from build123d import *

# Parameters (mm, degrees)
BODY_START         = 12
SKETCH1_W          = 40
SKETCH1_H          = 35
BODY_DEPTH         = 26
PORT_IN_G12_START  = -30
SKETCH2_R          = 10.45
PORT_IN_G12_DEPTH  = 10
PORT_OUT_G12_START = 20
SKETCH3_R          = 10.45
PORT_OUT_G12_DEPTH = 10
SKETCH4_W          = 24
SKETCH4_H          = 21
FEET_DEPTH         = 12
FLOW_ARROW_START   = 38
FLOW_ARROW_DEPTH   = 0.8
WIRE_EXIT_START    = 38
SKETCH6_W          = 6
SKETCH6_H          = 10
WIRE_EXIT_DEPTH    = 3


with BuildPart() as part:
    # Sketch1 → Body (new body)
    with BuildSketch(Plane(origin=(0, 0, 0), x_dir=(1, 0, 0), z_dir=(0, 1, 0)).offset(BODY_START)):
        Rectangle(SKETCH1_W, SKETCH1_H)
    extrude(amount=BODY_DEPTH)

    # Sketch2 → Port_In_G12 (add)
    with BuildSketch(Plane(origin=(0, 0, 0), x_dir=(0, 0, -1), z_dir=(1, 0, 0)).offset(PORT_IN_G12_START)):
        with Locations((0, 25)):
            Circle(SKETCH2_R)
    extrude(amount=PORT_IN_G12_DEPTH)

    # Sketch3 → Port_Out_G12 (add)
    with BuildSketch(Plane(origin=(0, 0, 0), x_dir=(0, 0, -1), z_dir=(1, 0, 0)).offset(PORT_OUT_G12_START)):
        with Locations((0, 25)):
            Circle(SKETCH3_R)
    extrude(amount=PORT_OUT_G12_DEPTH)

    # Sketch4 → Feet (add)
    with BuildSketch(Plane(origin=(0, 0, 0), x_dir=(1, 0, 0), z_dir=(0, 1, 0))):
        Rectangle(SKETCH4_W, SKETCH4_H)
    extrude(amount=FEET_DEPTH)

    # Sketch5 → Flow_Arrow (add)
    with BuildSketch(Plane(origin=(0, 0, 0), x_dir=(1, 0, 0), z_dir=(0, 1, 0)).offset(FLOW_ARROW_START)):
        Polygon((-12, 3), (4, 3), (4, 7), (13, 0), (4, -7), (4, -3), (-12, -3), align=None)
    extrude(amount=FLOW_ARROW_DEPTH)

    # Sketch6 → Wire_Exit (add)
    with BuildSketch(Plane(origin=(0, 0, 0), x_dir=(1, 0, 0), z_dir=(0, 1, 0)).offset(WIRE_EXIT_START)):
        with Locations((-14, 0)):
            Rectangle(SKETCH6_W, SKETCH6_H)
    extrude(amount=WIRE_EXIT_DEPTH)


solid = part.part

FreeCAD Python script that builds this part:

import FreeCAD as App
import Part
import Sketcher
from FreeCAD import Vector

doc = App.newDocument("Part")
body = doc.addObject("PartDesign::Body", "Body")

sketch1 = doc.addObject("Sketcher::SketchObject", "Sketch")
body.addObject(sketch1)
sketch1.AttachmentSupport = (doc.XZ_Plane, [""])
sketch1.MapMode = "FlatFace"
sketch1.AttachmentOffset = App.Placement(Vector(0, 0, -12), App.Rotation())
sketch1.addGeometry([
    Part.LineSegment(Vector(-20, -18, 0), Vector(-20, 18, 0)),
    Part.LineSegment(Vector(-20, 18, 0), Vector(20, 18, 0)),
    Part.LineSegment(Vector(20, 18, 0), Vector(20, -18, 0)),
    Part.LineSegment(Vector(20, -18, 0), Vector(-20, -18, 0)),
], False)
sketch1.addConstraint([
    Sketcher.Constraint("Coincident", 0, 2, 1, 1),
    Sketcher.Constraint("Coincident", 1, 2, 2, 1),
    Sketcher.Constraint("Coincident", 2, 2, 3, 1),
    Sketcher.Constraint("Coincident", 3, 2, 0, 1),
    Sketcher.Constraint("Vertical", 0),
    Sketcher.Constraint("Horizontal", 1),
    Sketcher.Constraint("Vertical", 2),
    Sketcher.Constraint("Horizontal", 3),
    Sketcher.Constraint("Symmetric", 0, 2, 2, 2, -1, 1),
    Sketcher.Constraint("DistanceX", 1, 1, 1, 2, 40.0),
    Sketcher.Constraint("DistanceY", 0, 1, 0, 2, 35.0),
])
pad1 = doc.addObject("PartDesign::Pad", "Pad")
body.addObject(pad1)
pad1.Profile = sketch1
pad1.Length = 26
pad1.Reversed = True

sketch2 = doc.addObject("Sketcher::SketchObject", "Sketch001")
body.addObject(sketch2)
sketch2.AttachmentSupport = (doc.YZ_Plane, [""])
sketch2.MapMode = "FlatFace"
sketch2.AttachmentOffset = App.Placement(Vector(0, 0, -30), App.Rotation())
sketch2.addGeometry(Part.Circle(Vector(25, 0, 0), Vector(0, 0, 1), 10), False)
sketch2.addConstraint([
    Sketcher.Constraint("PointOnObject", 0, 3, -1),
    Sketcher.Constraint("Diameter", 0, 20.9),
    Sketcher.Constraint("DistanceX", -1, 1, 0, 3, 25.0),
])
pad2 = doc.addObject("PartDesign::Pad", "Pad001")
body.addObject(pad2)
pad2.Profile = sketch2
pad2.Length = 10

sketch3 = doc.addObject("Sketcher::SketchObject", "Sketch002")
body.addObject(sketch3)
sketch3.AttachmentSupport = (doc.YZ_Plane, [""])
sketch3.MapMode = "FlatFace"
sketch3.AttachmentOffset = App.Placement(Vector(0, 0, 20), App.Rotation())
sketch3.addGeometry(Part.Circle(Vector(25, 0, 0), Vector(0, 0, 1), 10), False)
sketch3.addConstraint([
    Sketcher.Constraint("PointOnObject", 0, 3, -1),
    Sketcher.Constraint("Diameter", 0, 20.9),
    Sketcher.Constraint("DistanceX", -1, 1, 0, 3, 25.0),
])
pad3 = doc.addObject("PartDesign::Pad", "Pad002")
body.addObject(pad3)
pad3.Profile = sketch3
pad3.Length = 10

sketch4 = doc.addObject("Sketcher::SketchObject", "Sketch003")
body.addObject(sketch4)
sketch4.AttachmentSupport = (doc.XZ_Plane, [""])
sketch4.MapMode = "FlatFace"
sketch4.addGeometry([
    Part.LineSegment(Vector(-12, -10, 0), Vector(-12, 10, 0)),
    Part.LineSegment(Vector(-12, 10, 0), Vector(12, 10, 0)),
    Part.LineSegment(Vector(12, 10, 0), Vector(12, -10, 0)),
    Part.LineSegment(Vector(12, -10, 0), Vector(-12, -10, 0)),
], False)
sketch4.addConstraint([
    Sketcher.Constraint("Coincident", 0, 2, 1, 1),
    Sketcher.Constraint("Coincident", 1, 2, 2, 1),
    Sketcher.Constraint("Coincident", 2, 2, 3, 1),
    Sketcher.Constraint("Coincident", 3, 2, 0, 1),
    Sketcher.Constraint("Vertical", 0),
    Sketcher.Constraint("Horizontal", 1),
    Sketcher.Constraint("Vertical", 2),
    Sketcher.Constraint("Horizontal", 3),
    Sketcher.Constraint("Symmetric", 0, 2, 2, 2, -1, 1),
    Sketcher.Constraint("DistanceX", 1, 1, 1, 2, 24.0),
    Sketcher.Constraint("DistanceY", 0, 1, 0, 2, 21.0),
])
pad4 = doc.addObject("PartDesign::Pad", "Pad003")
body.addObject(pad4)
pad4.Profile = sketch4
pad4.Length = 12
pad4.Reversed = True

sketch5 = doc.addObject("Sketcher::SketchObject", "Sketch004")
body.addObject(sketch5)
sketch5.AttachmentSupport = (doc.XZ_Plane, [""])
sketch5.MapMode = "FlatFace"
sketch5.AttachmentOffset = App.Placement(Vector(0, 0, -38), App.Rotation())
sketch5.addGeometry([
    Part.LineSegment(Vector(4, -3, 0), Vector(-12, -3, 0)),
    Part.LineSegment(Vector(-12, -3, 0), Vector(-12, 3, 0)),
    Part.LineSegment(Vector(-12, 3, 0), Vector(4, 3, 0)),
    Part.LineSegment(Vector(4, 3, 0), Vector(4, 7, 0)),
    Part.LineSegment(Vector(4, 7, 0), Vector(13, 0, 0)),
    Part.LineSegment(Vector(13, 0, 0), Vector(4, -7, 0)),
    Part.LineSegment(Vector(4, -7, 0), Vector(4, -3, 0)),
], False)
sketch5.addConstraint([
    Sketcher.Constraint("Coincident", 0, 2, 1, 1),
    Sketcher.Constraint("Coincident", 1, 2, 2, 1),
    Sketcher.Constraint("Coincident", 2, 2, 3, 1),
    Sketcher.Constraint("Coincident", 3, 2, 4, 1),
    Sketcher.Constraint("Coincident", 4, 2, 5, 1),
    Sketcher.Constraint("Coincident", 5, 2, 6, 1),
    Sketcher.Constraint("Coincident", 6, 2, 0, 1),
    Sketcher.Constraint("Horizontal", 0),
    Sketcher.Constraint("Vertical", 1),
    Sketcher.Constraint("Horizontal", 2),
    Sketcher.Constraint("Vertical", 3),
    Sketcher.Constraint("Vertical", 6),
    Sketcher.Constraint("Symmetric", 3, 2, 5, 2, -1),
    Sketcher.Constraint("PointOnObject", 4, 2, -1),
    Sketcher.Constraint("Equal", 3, 6),
    Sketcher.Constraint("DistanceX", 0, 2, 0, 1, 16.0),
    Sketcher.Constraint("DistanceY", 1, 1, 1, 2, 6.0),
    Sketcher.Constraint("DistanceY", 3, 1, 3, 2, 4.0),
    Sketcher.Constraint("DistanceX", 0, 2, -1, 1, 12.0),
    Sketcher.Constraint("DistanceX", -1, 1, 4, 2, 13.0),
])
pad5 = doc.addObject("PartDesign::Pad", "Pad004")
body.addObject(pad5)
pad5.Profile = sketch5
pad5.Length = 0.8
pad5.Reversed = True

sketch6 = doc.addObject("Sketcher::SketchObject", "Sketch005")
body.addObject(sketch6)
sketch6.AttachmentSupport = (doc.XZ_Plane, [""])
sketch6.MapMode = "FlatFace"
sketch6.AttachmentOffset = App.Placement(Vector(0, 0, -38), App.Rotation())
sketch6.addGeometry([
    Part.LineSegment(Vector(-17, -5, 0), Vector(-17, 5, 0)),
    Part.LineSegment(Vector(-17, 5, 0), Vector(-11, 5, 0)),
    Part.LineSegment(Vector(-11, 5, 0), Vector(-11, -5, 0)),
    Part.LineSegment(Vector(-11, -5, 0), Vector(-17, -5, 0)),
], False)
sketch6.addConstraint([
    Sketcher.Constraint("Coincident", 0, 2, 1, 1),
    Sketcher.Constraint("Coincident", 1, 2, 2, 1),
    Sketcher.Constraint("Coincident", 2, 2, 3, 1),
    Sketcher.Constraint("Coincident", 3, 2, 0, 1),
    Sketcher.Constraint("Vertical", 0),
    Sketcher.Constraint("Horizontal", 1),
    Sketcher.Constraint("Vertical", 2),
    Sketcher.Constraint("Horizontal", 3),
    Sketcher.Constraint("DistanceX", 1, 1, 1, 2, 6.0),
    Sketcher.Constraint("DistanceY", 0, 1, 0, 2, 10.0),
    Sketcher.Constraint("DistanceX", 0, 2, -1, 1, 17.0),
    Sketcher.Constraint("DistanceY", -1, 1, 0, 2, 5.0),
])
pad6 = doc.addObject("PartDesign::Pad", "Pad005")
body.addObject(pad6)
pad6.Profile = sketch6
pad6.Length = 3
pad6.Reversed = True

doc.recompute()
